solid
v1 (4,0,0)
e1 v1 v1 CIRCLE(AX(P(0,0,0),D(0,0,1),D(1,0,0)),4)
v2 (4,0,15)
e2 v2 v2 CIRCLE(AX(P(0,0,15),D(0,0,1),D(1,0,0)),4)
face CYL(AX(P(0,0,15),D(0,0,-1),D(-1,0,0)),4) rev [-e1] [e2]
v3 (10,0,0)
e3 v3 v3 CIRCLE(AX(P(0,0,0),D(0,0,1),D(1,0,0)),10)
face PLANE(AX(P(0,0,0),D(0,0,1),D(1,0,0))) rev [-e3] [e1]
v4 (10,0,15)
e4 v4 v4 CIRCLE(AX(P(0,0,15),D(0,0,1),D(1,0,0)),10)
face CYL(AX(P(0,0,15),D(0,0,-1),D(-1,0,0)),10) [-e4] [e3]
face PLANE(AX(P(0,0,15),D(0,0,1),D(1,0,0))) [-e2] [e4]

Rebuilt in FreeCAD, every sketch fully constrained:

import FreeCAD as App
import Part
import Sketcher

doc = App.newDocument("Part")
params = doc.addObject("Spreadsheet::Sheet", "Params")
for row, (alias, value) in enumerate([
    ("sketch1_diameter", "20 mm"),
    ("sketch1_diameter2", "8 mm"),
    ("pad1_length", "15 mm"),
], start=1):
    params.set(f"A{row}", alias)
    params.set(f"B{row}", "=" + value)
    params.setAlias(f"B{row}", alias)

body = doc.addObject("PartDesign::Body", "Body")

# Sketch on XY plane
sketch1 = doc.addObject("Sketcher::SketchObject", "Sketch")
body.addObject(sketch1)
sketch1.AttachmentSupport = (doc.XY_Plane, [""])
sketch1.MapMode = "FlatFace"
sketch1.addGeometry([
    Part.Circle(App.Vector(0, 0, 0), App.Vector(0, 0, 1), 10),
    Part.Circle(App.Vector(0, 0, 0), App.Vector(0, 0, 1), 4),
], False)
sketch1.addConstraint([
    Sketcher.Constraint("Coincident", 0, 3, -1, 1),
    Sketcher.Constraint("Coincident", 1, 3, -1, 1),
    Sketcher.Constraint("Diameter", 0, 20.0),
    Sketcher.Constraint("Diameter", 1, 8.0),
])
sketch1.setExpression("Constraints[2]", "Params.sketch1_diameter")
sketch1.setExpression("Constraints[3]", "Params.sketch1_diameter2")
pad1 = doc.addObject("PartDesign::Pad", "Pad")
body.addObject(pad1)
pad1.Profile = sketch1
pad1.setExpression("Length", "Params.pad1_length")

doc.recompute()
